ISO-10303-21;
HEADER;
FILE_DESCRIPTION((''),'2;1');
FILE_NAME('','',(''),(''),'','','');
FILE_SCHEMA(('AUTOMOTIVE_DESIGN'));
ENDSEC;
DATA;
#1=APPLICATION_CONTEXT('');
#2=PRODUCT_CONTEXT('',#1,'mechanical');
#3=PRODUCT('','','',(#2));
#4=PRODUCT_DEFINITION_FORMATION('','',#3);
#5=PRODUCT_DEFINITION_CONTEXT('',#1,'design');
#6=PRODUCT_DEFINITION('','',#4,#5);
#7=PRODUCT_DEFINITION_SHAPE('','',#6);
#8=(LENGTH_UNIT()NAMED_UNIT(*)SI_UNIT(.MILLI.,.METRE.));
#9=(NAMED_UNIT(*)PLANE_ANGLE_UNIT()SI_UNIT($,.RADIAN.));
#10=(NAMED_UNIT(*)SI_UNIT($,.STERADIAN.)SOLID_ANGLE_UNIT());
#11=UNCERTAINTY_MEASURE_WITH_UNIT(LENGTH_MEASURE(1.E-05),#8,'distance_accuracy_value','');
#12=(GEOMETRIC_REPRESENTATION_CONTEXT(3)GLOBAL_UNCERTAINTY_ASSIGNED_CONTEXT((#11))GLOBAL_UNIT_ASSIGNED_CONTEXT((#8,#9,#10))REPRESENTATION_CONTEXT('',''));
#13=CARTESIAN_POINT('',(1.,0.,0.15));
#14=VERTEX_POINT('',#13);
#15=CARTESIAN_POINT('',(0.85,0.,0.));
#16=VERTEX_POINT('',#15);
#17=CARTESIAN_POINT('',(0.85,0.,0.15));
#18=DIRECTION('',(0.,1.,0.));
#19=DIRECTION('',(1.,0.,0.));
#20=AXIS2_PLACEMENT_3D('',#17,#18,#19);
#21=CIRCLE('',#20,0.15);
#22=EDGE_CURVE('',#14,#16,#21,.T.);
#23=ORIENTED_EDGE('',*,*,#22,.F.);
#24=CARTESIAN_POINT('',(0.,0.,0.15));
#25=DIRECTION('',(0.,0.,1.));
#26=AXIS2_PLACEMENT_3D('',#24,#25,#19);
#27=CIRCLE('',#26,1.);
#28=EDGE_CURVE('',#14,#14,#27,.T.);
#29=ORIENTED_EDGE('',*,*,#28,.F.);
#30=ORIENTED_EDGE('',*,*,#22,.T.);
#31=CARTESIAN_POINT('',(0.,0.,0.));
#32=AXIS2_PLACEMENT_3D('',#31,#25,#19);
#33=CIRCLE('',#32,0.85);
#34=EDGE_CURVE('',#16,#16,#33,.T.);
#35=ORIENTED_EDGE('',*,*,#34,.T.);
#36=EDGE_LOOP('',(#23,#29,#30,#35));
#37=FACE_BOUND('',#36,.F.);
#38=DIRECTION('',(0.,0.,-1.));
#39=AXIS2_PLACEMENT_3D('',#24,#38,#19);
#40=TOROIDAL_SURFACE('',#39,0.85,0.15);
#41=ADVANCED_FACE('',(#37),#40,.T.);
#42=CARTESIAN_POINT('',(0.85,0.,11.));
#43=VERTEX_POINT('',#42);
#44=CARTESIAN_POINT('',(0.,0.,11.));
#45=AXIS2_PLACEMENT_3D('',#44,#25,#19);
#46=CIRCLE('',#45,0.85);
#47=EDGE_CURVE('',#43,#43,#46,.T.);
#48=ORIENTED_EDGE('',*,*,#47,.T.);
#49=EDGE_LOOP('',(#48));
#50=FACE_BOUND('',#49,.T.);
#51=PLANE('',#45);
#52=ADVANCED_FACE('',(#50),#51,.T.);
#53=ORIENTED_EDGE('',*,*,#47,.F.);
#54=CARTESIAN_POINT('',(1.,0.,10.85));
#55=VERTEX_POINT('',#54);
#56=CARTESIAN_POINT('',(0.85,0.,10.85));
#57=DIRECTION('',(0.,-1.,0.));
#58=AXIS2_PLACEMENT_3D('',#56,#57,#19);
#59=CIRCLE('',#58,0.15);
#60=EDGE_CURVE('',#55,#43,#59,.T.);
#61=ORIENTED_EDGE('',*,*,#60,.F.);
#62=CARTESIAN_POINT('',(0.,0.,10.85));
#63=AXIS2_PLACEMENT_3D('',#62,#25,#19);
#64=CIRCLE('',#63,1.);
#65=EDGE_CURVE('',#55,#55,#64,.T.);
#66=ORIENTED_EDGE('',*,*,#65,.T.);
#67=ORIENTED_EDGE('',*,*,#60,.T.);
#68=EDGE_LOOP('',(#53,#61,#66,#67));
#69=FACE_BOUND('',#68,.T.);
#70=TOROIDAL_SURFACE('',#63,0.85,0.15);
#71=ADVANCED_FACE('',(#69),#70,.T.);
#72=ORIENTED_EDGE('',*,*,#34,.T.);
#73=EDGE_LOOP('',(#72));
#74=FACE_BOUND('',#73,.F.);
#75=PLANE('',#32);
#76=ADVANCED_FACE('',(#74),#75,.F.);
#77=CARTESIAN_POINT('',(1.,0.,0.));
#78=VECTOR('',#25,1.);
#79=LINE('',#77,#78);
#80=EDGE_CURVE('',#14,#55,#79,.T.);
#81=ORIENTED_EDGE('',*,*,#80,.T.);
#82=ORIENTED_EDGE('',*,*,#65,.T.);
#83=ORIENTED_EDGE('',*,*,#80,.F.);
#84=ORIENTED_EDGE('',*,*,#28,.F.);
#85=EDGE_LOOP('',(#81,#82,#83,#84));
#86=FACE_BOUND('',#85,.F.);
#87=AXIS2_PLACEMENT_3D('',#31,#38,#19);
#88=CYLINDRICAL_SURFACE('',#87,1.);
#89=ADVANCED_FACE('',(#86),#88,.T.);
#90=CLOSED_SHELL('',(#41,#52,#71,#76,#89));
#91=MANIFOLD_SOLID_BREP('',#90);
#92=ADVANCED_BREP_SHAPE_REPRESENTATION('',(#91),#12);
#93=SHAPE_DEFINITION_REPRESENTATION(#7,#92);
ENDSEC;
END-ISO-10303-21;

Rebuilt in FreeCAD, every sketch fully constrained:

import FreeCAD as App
import Part
import Sketcher
from FreeCAD import Vector


def edges_at(feature, points):
    """Names of the edges that pass closest to the given points."""
    edges = feature.Shape.Edges
    near = lambda p: min(range(len(edges)), key=lambda i: edges[i].distToShape(Part.Vertex(*p))[0])
    return sorted({f"Edge{near(p) + 1}" for p in points})

doc = App.newDocument("Part")
body = doc.addObject("PartDesign::Body", "Body")

# Sketch on XY plane
sketch1 = body.newObject("Sketcher::SketchObject", "Sketch")
sketch1.AttachmentSupport = (doc.getObject("XY_Plane"), [""])
sketch1.MapMode = "FlatFace"
sketch1.addGeometry(Part.Circle(Vector(0, 0, 0), Vector(0, 0, 1), 1), False)
sketch1.addConstraint([
    Sketcher.Constraint("Coincident", 0, 3, -1, 1),
    Sketcher.Constraint("Diameter", 0, 2.0),
])
pad1 = body.newObject("PartDesign::Pad", "Pad")
pad1.Profile = sketch1
pad1.Length = 11
doc.recompute()

fillet = body.newObject("PartDesign::Fillet", "Fillet")
fillet.Base = (pad1, edges_at(pad1, [(-1, 0, 11), (-1, 0, 0)]))
fillet.Radius = 0.15

doc.recompute()
